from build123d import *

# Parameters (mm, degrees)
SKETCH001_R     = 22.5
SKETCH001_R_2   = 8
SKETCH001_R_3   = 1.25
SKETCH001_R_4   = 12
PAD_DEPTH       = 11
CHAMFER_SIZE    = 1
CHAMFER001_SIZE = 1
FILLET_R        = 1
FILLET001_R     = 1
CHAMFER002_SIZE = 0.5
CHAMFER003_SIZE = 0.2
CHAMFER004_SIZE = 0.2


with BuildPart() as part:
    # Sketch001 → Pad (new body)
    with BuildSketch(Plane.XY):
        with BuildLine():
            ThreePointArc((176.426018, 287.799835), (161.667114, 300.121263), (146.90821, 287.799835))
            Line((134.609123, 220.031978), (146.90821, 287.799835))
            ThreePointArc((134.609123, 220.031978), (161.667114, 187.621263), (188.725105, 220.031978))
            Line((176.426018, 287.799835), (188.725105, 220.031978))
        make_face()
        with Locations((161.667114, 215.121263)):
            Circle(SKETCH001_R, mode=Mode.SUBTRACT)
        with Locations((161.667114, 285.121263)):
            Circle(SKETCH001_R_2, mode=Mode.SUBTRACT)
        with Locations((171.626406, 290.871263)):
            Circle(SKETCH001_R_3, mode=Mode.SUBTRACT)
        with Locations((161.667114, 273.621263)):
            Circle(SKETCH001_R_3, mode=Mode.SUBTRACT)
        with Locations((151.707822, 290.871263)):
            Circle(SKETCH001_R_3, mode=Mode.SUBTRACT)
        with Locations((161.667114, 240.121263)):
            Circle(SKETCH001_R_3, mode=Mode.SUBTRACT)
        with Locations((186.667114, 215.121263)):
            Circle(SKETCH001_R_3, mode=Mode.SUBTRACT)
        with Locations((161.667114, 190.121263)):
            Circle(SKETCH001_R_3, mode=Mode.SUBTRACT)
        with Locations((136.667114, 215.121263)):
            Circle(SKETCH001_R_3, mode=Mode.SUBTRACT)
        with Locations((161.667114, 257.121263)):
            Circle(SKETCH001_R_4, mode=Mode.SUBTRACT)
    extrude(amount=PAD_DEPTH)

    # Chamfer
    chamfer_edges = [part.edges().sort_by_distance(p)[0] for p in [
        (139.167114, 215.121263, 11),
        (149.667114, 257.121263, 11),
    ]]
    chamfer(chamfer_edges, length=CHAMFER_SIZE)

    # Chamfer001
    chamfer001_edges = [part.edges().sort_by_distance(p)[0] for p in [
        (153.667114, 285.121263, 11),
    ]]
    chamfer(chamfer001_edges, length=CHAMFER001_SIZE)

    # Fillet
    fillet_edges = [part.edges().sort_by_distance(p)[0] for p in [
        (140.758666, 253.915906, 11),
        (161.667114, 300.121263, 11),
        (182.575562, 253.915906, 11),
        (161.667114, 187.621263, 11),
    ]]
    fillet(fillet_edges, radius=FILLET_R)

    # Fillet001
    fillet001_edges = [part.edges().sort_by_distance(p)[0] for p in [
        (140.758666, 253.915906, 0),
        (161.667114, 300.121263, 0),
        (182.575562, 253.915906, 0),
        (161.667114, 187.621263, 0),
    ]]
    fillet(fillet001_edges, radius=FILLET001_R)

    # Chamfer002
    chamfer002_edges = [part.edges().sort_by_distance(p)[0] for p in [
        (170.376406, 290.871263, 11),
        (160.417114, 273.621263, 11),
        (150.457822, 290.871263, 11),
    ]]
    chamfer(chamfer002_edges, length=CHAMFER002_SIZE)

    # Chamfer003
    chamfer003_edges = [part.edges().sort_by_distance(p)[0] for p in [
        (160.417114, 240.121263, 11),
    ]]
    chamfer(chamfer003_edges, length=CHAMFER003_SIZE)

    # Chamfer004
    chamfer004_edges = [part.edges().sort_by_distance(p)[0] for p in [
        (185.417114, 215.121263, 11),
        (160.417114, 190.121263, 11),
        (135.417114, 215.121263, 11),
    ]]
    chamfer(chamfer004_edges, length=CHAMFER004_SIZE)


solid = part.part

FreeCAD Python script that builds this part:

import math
import FreeCAD as App
import Part
import Sketcher
Q = App.Units.Quantity


def edges_at(feature, points):
    """Names of the edges that pass closest to the given points."""
    edges = feature.Shape.Edges
    near = lambda p: min(range(len(edges)), key=lambda i: edges[i].distToShape(Part.Vertex(*p))[0])
    return sorted({f"Edge{near(p) + 1}" for p in points})

doc = App.newDocument("Part")
body = doc.addObject("PartDesign::Body", "Body")

# Sketch on XY plane
sketch1 = body.newObject("Sketcher::SketchObject", "Sketch")
sketch1.AttachmentSupport = (doc.getObject("XY_Plane"), [""])
sketch1.MapMode = "FlatFace"
sketch1.addGeometry([
    Part.ArcOfCircle(Part.Circle(App.Vector(161.667114, 285.121263, 0), App.Vector(0, 0, 1), 15), math.radians(10.286562), math.radians(169.713438)),  # 0
    Part.LineSegment(App.Vector(146.90821, 287.799835, 0), App.Vector(134.609123, 220.031978, 0)),  # 1
    Part.ArcOfCircle(Part.Circle(App.Vector(161.667114, 215.121263, 0), App.Vector(0, 0, 1), 27.5), math.radians(169.713438), math.radians(370.286562)),  # 2
    Part.LineSegment(App.Vector(188.725105, 220.031978, 0), App.Vector(176.426018, 287.799835, 0)),  # 3
    Part.Circle(App.Vector(136.667114, 215.121263, 0), App.Vector(0, 0, 1), 1.25),  # 4
    Part.Circle(App.Vector(161.667114, 190.121263, 0), App.Vector(0, 0, 1), 1.25),  # 5
    Part.Circle(App.Vector(161.667114, 215.121263, 0), App.Vector(0, 0, 1), 22.5),  # 6
    Part.Circle(App.Vector(161.667114, 240.121263, 0), App.Vector(0, 0, 1), 1.25),  # 7
    Part.Circle(App.Vector(186.667114, 215.121263, 0), App.Vector(0, 0, 1), 1.25),  # 8
    Part.Circle(App.Vector(151.707822, 290.871263, 0), App.Vector(0, 0, 1), 1.25),  # 9
    Part.Circle(App.Vector(161.667114, 257.121263, 0), App.Vector(0, 0, 1), 12),  # 10
    Part.Circle(App.Vector(161.667114, 273.621263, 0), App.Vector(0, 0, 1), 1.25),  # 11
    Part.Circle(App.Vector(161.667114, 285.121263, 0), App.Vector(0, 0, 1), 8),  # 12
    Part.Circle(App.Vector(171.626406, 290.871263, 0), App.Vector(0, 0, 1), 1.25),  # 13
], False)
sketch1.addConstraint([
    Sketcher.Constraint("Tangent", 0, 2, 1, 1),
    Sketcher.Constraint("Tangent", 1, 2, 2, 1),
    Sketcher.Constraint("Tangent", 2, 2, 3, 1),
    Sketcher.Constraint("Tangent", 3, 2, 0, 1),
    Sketcher.Constraint("Coincident", 6, 3, 2, 3),
    Sketcher.Constraint("Coincident", 12, 3, 0, 3),
    Sketcher.Constraint("Equal", 4, 5),
    Sketcher.Constraint("Equal", 5, 7),
    Sketcher.Constraint("Equal", 7, 8),
    Sketcher.Constraint("Equal", 8, 9),
    Sketcher.Constraint("Equal", 9, 11),
    Sketcher.Constraint("Equal", 11, 13),
    Sketcher.Constraint("Horizontal", 2, 3, 4, 3),
    Sketcher.Constraint("Horizontal", 6, 3, 8, 3),
    Sketcher.Constraint("Horizontal", 9, 3, 13, 3),
    Sketcher.Constraint("Horizontal", 1, 2, 2, 2),
    Sketcher.Constraint("Vertical", 2, 3, 5, 3),
    Sketcher.Constraint("Vertical", 6, 3, 7, 3),
    Sketcher.Constraint("Vertical", 7, 3, 10, 3),
    Sketcher.Constraint("Vertical", 10, 3, 11, 3),
    Sketcher.Constraint("Diameter", 6, Q("45 mm")),
    Sketcher.Constraint("Diameter", 10, Q("24 mm")),
    Sketcher.Constraint("Diameter", 12, Q("16 mm")),
    Sketcher.Constraint("Radius", 0, Q("15 mm")),
    Sketcher.Constraint("Diameter", 4, Q("2.5 mm")),
    Sketcher.Constraint("Radius", 2, Q("27.5 mm")),
    Sketcher.Constraint("DistanceY", 2, 3, 0, 3, Q("70 mm")),
    Sketcher.Constraint("DistanceX", 4, 3, 2, 3, Q("25 mm")),
    Sketcher.Constraint("DistanceY", 5, 3, 2, 3, Q("25 mm")),
    Sketcher.Constraint("DistanceY", 6, 3, 7, 3, Q("25 mm")),
    Sketcher.Constraint("DistanceX", 2, 3, 8, 3, Q("25 mm")),
    Sketcher.Constraint("DistanceY", 7, 3, 10, 3, Q("17 mm")),
    Sketcher.Constraint("DistanceY", 11, 3, 0, 3, Q("11.5 mm")),
    Sketcher.Constraint("DistanceY", 0, 3, 9, 3, Q("5.75 mm")),
    Sketcher.Constraint("DistanceX", -1, 1, 9, 3, Q("151.707822 mm")),
    Sketcher.Constraint("DistanceX", -1, 1, 0, 2, Q("146.90821 mm")),
    Sketcher.Constraint("DistanceY", -1, 1, 1, 2, Q("220.031978 mm")),
    Sketcher.Constraint("DistanceX", 13, 3, 3, 2, Q("4.799612 mm")),
])
pad1 = body.newObject("PartDesign::Pad", "Pad")
pad1.Profile = sketch1
pad1.Length = 11
doc.recompute()

chamfer = body.newObject("PartDesign::Chamfer", "Chamfer")
chamfer.Base = (pad1, edges_at(pad1, [(139.167, 215.121, 11), (149.667, 257.121, 11)]))
chamfer.Size = 1
doc.recompute()

chamfer2 = body.newObject("PartDesign::Chamfer", "Chamfer001")
chamfer2.Base = (chamfer, edges_at(chamfer, [(153.667, 285.121, 11)]))
chamfer2.Size = 1
doc.recompute()

fillet = body.newObject("PartDesign::Fillet", "Fillet")
fillet.Base = (chamfer2, edges_at(chamfer2, [
    (140.759, 253.916, 11),
    (161.667, 300.121, 11),
    (182.576, 253.916, 11),
    (161.667, 187.621, 11),
]))
fillet.Radius = 1
doc.recompute()

fillet2 = body.newObject("PartDesign::Fillet", "Fillet001")
fillet2.Base = (fillet, edges_at(fillet, [
    (140.759, 253.916, 0),
    (161.667, 300.121, 0),
    (182.576, 253.916, 0),
    (161.667, 187.621, 0),
]))
fillet2.Radius = 1
doc.recompute()

chamfer3 = body.newObject("PartDesign::Chamfer", "Chamfer002")
chamfer3.Base = (fillet2, edges_at(fillet2, [(170.376, 290.871, 11), (160.417, 273.621, 11), (150.458, 290.871, 11)]))
chamfer3.Size = 0.5
doc.recompute()

chamfer4 = body.newObject("PartDesign::Chamfer", "Chamfer003")
chamfer4.Base = (chamfer3, edges_at(chamfer3, [(160.417, 240.121, 11)]))
chamfer4.Size = 0.2
doc.recompute()

chamfer5 = body.newObject("PartDesign::Chamfer", "Chamfer004")
chamfer5.Base = (chamfer4, edges_at(chamfer4, [(185.417, 215.121, 11), (160.417, 190.121, 11), (135.417, 215.121, 11)]))
chamfer5.Size = 0.2

doc.recompute()
